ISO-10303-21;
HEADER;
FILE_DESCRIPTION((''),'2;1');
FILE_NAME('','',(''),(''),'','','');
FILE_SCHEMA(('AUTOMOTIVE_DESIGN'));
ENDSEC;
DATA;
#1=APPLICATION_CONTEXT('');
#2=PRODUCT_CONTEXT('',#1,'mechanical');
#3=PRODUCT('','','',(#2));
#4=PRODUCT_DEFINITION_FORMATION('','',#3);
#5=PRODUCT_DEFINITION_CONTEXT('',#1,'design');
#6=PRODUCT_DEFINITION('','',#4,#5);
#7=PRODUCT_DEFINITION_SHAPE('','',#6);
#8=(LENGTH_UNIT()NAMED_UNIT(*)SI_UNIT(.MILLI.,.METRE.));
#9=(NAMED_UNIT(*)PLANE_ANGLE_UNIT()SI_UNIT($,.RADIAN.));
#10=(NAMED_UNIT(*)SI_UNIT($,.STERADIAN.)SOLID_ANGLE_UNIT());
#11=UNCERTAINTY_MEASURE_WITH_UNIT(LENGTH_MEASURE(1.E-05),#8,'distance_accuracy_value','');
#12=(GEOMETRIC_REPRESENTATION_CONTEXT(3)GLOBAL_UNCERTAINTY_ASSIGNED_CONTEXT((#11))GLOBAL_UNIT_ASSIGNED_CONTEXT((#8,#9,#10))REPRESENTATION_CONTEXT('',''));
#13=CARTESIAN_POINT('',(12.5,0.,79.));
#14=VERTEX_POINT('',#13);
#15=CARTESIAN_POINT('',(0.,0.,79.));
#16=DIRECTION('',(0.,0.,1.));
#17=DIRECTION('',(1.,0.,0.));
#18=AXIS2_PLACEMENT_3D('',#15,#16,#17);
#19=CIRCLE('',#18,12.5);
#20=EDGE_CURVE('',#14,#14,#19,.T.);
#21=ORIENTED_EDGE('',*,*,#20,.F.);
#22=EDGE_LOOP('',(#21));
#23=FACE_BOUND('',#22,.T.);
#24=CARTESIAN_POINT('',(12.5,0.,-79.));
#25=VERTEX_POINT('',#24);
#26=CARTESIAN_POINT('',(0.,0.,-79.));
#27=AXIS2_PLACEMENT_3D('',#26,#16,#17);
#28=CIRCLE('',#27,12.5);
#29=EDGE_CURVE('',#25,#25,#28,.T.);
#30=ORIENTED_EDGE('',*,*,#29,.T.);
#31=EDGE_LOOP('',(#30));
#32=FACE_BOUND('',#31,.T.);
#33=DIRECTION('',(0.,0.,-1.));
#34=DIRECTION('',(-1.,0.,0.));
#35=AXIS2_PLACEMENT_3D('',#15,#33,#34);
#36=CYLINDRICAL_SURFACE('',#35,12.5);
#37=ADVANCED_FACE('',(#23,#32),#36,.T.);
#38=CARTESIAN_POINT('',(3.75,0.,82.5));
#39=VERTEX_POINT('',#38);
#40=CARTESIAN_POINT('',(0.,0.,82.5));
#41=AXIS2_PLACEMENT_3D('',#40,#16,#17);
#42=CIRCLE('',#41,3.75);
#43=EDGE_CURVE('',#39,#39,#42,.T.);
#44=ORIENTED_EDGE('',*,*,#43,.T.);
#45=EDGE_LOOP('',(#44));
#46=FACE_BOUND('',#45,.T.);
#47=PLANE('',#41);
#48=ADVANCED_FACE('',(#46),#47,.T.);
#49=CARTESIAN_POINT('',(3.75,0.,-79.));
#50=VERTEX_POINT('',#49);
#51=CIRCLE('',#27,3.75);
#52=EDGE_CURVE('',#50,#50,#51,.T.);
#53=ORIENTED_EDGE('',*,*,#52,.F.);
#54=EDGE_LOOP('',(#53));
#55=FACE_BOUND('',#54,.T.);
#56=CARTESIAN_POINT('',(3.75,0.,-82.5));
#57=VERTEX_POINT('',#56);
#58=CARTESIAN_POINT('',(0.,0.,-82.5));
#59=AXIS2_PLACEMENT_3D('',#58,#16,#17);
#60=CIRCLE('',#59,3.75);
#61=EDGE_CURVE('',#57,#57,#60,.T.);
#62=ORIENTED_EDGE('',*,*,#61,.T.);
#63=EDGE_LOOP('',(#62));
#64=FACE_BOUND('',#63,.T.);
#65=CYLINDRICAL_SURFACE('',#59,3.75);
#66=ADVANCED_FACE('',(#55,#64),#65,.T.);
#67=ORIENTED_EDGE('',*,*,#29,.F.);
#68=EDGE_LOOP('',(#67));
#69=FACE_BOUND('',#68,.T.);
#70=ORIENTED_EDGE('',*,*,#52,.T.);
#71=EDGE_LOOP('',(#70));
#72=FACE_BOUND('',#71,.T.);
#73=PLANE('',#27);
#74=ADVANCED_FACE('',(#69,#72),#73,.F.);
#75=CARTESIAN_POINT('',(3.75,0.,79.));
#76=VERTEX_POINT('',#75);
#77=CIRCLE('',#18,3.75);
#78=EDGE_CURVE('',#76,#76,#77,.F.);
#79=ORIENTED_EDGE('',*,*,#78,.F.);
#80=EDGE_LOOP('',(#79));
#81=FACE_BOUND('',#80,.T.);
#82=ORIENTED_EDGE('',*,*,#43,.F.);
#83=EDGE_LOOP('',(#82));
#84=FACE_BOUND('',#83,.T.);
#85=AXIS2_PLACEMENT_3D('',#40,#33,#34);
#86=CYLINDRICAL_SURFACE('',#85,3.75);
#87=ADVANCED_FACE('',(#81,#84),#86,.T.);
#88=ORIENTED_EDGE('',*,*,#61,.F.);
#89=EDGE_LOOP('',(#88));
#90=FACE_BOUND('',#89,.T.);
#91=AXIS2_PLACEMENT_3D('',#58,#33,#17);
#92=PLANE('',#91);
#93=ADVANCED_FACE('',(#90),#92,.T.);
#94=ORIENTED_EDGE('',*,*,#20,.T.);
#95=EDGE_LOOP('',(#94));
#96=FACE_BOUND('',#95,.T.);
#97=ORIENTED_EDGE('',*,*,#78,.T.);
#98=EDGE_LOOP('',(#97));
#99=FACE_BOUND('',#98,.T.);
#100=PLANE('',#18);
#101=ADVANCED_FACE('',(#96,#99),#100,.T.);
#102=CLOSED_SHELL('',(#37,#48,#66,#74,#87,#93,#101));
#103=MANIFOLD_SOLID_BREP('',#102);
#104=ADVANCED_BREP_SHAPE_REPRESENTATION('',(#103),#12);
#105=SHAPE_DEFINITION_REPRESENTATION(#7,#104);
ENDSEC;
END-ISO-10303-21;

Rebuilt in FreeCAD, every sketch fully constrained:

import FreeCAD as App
import Part
import Sketcher

doc = App.newDocument("Part")
body = doc.addObject("PartDesign::Body", "Body")

# Sketch on XY plane
sketch1 = body.newObject("Sketcher::SketchObject", "Sketch")
sketch1.AttachmentSupport = (doc.getObject("XY_Plane"), [""])
sketch1.MapMode = "FlatFace"
sketch1.addGeometry(Part.Circle(App.Vector(0, 0, 0), App.Vector(0, 0, 1), 12), False)
sketch1.addConstraint([
    Sketcher.Constraint("Coincident", 0, 3, -1, 1),
    Sketcher.Constraint("Diameter", 0, 25.0),
])
pad1 = body.newObject("PartDesign::Pad", "Pad")
pad1.Profile = sketch1
pad1.Length = 158
pad1.Midplane = True

# Sketch on XY plane
sketch2 = body.newObject("Sketcher::SketchObject", "Sketch001")
sketch2.AttachmentSupport = (doc.getObject("XY_Plane"), [""])
sketch2.MapMode = "FlatFace"
sketch2.AttachmentOffset = App.Placement(App.Vector(0, 0, 79), App.Rotation())
sketch2.addGeometry(Part.Circle(App.Vector(0, 0, 0), App.Vector(0, 0, 1), 3.8), False)
sketch2.addConstraint([
    Sketcher.Constraint("Coincident", 0, 3, -1, 1),
    Sketcher.Constraint("Diameter", 0, 7.5),
])
pad2 = body.newObject("PartDesign::Pad", "Pad001")
pad2.Profile = sketch2
pad2.Length = 7
pad2.Midplane = True
doc.recompute()

mirrored = body.newObject("PartDesign::Mirrored", "Mirrored")
mirrored.Originals = [pad2]
mirrored.MirrorPlane = (doc.getObject("XY_Plane"), [""])
body.Tip = mirrored

doc.recompute()
